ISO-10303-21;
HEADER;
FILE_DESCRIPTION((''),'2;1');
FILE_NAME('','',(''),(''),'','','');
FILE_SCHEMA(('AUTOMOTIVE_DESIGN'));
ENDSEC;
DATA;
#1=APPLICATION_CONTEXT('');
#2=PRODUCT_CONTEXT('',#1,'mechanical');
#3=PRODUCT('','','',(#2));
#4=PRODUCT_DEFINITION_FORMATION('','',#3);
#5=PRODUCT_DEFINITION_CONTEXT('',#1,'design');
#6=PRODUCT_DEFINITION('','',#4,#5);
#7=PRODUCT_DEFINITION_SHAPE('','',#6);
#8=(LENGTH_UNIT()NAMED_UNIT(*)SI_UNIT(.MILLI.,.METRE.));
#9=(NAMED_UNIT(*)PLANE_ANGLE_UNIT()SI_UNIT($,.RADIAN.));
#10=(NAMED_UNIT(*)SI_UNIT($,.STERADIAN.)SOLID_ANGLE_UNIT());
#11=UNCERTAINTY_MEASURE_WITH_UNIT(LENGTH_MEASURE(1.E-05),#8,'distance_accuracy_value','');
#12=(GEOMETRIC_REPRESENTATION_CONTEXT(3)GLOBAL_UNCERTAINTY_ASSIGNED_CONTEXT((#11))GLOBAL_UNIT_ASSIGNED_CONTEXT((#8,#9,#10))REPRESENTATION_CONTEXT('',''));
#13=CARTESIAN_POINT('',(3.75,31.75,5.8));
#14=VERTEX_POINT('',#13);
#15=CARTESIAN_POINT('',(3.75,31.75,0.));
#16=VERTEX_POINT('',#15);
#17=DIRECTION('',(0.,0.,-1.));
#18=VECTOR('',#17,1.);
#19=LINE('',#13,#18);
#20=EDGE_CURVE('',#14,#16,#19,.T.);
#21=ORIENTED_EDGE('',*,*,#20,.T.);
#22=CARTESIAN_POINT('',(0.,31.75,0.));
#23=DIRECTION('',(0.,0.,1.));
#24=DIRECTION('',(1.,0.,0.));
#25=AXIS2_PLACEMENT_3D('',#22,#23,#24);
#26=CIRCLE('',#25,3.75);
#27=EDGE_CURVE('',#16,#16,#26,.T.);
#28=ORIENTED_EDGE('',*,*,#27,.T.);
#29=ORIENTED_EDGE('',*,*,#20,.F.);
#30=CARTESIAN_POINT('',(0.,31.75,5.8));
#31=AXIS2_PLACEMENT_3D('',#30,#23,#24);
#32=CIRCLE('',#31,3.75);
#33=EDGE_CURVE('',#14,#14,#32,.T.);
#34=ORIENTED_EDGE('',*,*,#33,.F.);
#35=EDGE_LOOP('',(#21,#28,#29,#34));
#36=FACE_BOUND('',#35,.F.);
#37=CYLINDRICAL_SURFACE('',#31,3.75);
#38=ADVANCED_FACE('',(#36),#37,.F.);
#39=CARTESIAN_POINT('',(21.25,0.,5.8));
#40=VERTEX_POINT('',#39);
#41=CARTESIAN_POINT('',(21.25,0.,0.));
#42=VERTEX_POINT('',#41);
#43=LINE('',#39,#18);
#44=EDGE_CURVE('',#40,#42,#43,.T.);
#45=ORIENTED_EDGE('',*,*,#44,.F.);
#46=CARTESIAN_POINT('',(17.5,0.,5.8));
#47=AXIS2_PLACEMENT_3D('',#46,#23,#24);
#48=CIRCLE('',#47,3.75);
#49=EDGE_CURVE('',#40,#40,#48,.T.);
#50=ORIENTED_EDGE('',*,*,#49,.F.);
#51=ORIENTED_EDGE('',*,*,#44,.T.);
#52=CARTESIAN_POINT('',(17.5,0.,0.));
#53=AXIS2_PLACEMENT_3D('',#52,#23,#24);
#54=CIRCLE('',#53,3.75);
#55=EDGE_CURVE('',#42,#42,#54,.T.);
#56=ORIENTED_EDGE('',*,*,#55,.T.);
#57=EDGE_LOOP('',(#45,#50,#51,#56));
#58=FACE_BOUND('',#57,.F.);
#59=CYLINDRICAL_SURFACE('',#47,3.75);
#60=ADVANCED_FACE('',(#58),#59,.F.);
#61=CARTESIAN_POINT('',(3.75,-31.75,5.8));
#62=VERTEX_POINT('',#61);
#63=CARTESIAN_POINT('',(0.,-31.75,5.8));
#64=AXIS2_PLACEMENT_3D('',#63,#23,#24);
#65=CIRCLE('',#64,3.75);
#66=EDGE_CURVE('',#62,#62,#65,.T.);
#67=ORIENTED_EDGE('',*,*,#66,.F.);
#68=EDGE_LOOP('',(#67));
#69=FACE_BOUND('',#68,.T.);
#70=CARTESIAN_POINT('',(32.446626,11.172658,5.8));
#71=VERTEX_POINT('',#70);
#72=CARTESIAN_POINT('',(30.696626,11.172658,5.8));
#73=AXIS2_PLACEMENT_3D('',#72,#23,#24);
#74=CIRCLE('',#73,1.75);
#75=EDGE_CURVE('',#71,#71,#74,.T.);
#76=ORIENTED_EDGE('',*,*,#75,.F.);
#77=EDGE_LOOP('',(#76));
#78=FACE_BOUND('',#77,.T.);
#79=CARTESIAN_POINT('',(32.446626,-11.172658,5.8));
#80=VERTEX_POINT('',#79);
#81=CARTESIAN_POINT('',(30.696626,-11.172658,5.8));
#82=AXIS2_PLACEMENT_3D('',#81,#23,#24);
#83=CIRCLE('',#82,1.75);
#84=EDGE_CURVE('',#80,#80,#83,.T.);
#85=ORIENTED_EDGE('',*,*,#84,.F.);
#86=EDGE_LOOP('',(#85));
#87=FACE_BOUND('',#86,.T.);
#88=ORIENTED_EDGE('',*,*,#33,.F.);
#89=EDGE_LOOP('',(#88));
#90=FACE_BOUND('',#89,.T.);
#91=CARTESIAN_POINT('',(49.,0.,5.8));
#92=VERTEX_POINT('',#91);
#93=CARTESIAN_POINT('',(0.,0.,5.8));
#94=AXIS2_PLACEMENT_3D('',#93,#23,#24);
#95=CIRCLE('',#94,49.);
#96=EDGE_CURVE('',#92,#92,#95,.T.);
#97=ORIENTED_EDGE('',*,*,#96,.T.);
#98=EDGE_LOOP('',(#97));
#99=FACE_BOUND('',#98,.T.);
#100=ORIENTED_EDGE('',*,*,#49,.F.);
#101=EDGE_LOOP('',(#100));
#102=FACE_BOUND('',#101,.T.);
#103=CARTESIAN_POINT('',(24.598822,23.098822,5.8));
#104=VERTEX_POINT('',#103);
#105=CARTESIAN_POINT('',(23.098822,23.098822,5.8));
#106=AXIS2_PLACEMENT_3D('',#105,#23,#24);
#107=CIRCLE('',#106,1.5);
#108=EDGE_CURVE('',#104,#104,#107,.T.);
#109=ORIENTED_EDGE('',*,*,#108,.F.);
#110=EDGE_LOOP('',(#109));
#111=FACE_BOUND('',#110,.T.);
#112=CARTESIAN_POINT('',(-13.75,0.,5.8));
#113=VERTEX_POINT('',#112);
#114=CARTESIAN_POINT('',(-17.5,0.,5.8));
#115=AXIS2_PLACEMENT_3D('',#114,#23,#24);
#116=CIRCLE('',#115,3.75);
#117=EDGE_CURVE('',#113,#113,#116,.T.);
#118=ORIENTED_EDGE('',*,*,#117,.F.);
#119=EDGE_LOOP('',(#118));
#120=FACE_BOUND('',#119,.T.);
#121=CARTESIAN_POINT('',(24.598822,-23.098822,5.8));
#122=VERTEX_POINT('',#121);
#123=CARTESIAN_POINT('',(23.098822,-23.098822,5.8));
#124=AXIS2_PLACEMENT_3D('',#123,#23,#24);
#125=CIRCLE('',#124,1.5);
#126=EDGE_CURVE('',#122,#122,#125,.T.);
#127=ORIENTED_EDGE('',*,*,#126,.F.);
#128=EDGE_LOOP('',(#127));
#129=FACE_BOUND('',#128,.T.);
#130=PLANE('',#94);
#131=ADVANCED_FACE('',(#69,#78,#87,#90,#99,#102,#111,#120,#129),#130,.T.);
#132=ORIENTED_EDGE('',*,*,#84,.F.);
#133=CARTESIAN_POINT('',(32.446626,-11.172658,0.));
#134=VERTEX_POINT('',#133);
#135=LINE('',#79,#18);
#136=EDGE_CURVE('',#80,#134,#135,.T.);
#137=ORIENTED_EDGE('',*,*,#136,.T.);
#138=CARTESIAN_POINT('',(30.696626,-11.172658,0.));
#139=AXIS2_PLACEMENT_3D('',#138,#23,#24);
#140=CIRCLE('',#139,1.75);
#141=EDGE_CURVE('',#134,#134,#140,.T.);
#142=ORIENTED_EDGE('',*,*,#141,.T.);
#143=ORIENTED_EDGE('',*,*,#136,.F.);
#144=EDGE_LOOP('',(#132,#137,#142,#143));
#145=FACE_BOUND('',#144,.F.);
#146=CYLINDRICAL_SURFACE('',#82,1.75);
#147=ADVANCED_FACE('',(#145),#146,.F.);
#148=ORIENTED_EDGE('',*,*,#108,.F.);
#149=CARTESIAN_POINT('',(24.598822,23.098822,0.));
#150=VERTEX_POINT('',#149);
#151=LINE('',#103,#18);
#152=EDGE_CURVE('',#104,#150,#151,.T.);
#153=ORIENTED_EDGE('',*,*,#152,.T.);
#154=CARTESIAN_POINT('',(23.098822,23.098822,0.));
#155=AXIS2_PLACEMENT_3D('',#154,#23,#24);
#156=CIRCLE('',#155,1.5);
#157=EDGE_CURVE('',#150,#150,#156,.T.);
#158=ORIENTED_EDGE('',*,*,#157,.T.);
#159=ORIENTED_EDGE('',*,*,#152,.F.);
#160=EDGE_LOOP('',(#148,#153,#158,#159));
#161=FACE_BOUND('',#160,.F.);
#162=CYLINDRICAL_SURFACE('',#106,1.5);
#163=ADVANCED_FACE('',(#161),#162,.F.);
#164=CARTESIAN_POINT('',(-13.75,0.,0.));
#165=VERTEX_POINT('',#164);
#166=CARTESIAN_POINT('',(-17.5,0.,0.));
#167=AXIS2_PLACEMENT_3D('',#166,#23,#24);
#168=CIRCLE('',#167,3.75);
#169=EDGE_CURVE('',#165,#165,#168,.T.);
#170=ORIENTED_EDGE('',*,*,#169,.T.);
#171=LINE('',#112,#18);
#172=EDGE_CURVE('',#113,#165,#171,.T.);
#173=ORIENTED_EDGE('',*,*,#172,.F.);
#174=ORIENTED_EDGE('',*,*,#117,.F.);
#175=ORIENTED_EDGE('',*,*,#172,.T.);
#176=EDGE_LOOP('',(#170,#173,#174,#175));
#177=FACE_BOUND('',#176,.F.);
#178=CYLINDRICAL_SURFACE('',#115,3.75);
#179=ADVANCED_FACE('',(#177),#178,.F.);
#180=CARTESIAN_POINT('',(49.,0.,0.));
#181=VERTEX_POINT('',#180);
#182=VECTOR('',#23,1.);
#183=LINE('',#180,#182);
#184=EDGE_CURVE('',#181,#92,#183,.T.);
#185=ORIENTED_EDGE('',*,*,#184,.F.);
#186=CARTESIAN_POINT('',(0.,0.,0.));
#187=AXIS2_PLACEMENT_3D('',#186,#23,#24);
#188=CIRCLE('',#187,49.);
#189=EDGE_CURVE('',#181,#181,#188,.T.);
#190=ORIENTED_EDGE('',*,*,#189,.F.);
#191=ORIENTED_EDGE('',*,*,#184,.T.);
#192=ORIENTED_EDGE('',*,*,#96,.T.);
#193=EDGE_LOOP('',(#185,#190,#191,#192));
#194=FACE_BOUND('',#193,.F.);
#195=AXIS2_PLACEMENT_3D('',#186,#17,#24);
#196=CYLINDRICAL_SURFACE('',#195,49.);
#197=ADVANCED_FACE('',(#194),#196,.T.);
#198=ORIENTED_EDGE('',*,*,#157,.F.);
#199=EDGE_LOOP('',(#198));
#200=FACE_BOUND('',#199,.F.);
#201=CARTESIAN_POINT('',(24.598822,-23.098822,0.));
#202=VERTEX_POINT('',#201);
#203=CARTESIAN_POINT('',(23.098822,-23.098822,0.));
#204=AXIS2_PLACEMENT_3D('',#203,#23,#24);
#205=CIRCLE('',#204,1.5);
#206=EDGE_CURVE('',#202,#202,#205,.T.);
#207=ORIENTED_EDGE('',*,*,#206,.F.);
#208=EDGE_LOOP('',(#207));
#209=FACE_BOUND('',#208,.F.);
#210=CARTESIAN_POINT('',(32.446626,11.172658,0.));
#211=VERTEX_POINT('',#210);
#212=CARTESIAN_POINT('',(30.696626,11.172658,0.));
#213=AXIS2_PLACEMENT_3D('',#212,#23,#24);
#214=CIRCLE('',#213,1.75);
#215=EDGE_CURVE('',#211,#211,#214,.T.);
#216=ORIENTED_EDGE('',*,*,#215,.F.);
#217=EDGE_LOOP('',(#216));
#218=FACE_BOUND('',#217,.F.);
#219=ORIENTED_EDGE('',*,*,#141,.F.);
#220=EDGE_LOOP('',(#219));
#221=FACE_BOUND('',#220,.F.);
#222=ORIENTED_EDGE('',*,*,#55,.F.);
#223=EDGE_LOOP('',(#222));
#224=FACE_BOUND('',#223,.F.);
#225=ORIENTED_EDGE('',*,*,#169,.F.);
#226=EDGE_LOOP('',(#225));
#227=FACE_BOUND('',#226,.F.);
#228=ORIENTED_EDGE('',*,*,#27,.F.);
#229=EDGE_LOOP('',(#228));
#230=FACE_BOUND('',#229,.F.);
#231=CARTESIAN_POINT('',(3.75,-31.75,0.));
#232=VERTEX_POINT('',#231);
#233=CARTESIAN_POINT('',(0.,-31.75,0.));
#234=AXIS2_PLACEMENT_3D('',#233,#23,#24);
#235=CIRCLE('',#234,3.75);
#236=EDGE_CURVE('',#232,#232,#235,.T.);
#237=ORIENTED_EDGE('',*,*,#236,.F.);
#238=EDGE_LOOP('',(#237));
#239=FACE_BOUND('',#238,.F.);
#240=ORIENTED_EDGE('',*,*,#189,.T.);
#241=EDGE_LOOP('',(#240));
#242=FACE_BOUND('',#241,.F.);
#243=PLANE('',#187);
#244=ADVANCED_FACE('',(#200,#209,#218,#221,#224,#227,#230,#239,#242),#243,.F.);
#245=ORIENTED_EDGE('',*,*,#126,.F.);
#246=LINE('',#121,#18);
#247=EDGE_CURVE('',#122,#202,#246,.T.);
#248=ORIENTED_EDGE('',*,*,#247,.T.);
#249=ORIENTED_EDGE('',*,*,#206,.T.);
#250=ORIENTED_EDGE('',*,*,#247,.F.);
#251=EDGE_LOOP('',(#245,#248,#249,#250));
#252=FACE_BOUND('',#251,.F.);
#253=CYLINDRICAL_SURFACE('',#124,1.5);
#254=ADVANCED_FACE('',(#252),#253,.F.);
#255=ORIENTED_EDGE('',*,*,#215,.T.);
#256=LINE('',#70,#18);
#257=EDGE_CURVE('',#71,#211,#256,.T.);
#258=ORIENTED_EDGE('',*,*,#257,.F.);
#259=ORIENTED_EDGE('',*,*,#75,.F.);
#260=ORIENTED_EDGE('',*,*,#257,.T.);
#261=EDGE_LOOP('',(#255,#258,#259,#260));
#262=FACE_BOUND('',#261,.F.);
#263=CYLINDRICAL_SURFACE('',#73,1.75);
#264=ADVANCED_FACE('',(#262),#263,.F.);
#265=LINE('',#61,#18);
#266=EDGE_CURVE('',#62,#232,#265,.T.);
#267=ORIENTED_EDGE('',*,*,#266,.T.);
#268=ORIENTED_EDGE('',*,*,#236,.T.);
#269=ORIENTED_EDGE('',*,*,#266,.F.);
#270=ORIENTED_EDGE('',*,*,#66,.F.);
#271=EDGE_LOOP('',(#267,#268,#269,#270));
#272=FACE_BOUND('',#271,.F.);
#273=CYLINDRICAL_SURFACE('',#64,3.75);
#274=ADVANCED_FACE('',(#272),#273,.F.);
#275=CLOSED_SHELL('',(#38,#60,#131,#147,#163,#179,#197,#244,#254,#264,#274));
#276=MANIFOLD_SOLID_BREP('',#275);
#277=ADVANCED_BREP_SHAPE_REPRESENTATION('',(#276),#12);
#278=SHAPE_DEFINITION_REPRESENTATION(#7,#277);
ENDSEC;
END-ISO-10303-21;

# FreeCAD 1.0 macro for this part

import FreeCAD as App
import Part
import Sketcher

V = App.Vector
Q = App.Units.Quantity

doc = App.newDocument("Part")
body = doc.addObject("PartDesign::Body", "Body")

sketch1 = doc.addObject("Sketcher::SketchObject", "Sketch")
body.addObject(sketch1)
sketch1.AttachmentSupport = (doc.XY_Plane, [""])
sketch1.MapMode = "FlatFace"
sketch1.addGeometry(Part.Circle(V(0, 0, 0), V(0, 0, 1), 49), False)
sketch1.addConstraint([
    Sketcher.Constraint("Coincident", 0, 3, -1, 1),
    Sketcher.Constraint("Diameter", 0, Q("98 mm")),
])
pad1 = doc.addObject("PartDesign::Pad", "Pad")
body.addObject(pad1)
pad1.Profile = sketch1
pad1.Length = 5.8

sketch2 = doc.addObject("Sketcher::SketchObject", "Sketch001")
body.addObject(sketch2)
sketch2.AttachmentSupport = (doc.XY_Plane, [""])
sketch2.MapMode = "FlatFace"
sketch2.AttachmentOffset = App.Placement(V(0, 0, 5.8), App.Rotation())
sketch2.addGeometry([
    Part.Circle(V(0, 31.75, 0), V(0, 0, 1), 3.75),
    Part.Circle(V(0, -31.75, 0), V(0, 0, 1), 3.75),
    Part.Circle(V(-17.5, 0, 0), V(0, 0, 1), 3.75),
    Part.Circle(V(17.5, 0, 0), V(0, 0, 1), 3.75),
    Part.Circle(V(23.098822, 23.098822, 0), V(0, 0, 1), 1.5),
    Part.Circle(V(23.098822, -23.098822, 0), V(0, 0, 1), 1.5),
    Part.Circle(V(30.696626, 11.172658, 0), V(0, 0, 1), 1.75),
    Part.Circle(V(30.696626, -11.172658, 0), V(0, 0, 1), 1.75),
], False)
sketch2.addConstraint([
    Sketcher.Constraint("Equal", 0, 1),
    Sketcher.Constraint("Equal", 1, 2),
    Sketcher.Constraint("Equal", 2, 3),
    Sketcher.Constraint("Equal", 4, 5),
    Sketcher.Constraint("Equal", 6, 7),
    Sketcher.Constraint("Symmetric", 0, 3, 1, 3, -1, 1),
    Sketcher.Constraint("Symmetric", 2, 3, 3, 3, -1, 1),
    Sketcher.Constraint("Symmetric", 4, 3, 5, 3, -1),
    Sketcher.Constraint("Symmetric", 6, 3, 7, 3, -1),
    Sketcher.Constraint("PointOnObject", 0, 3, -2),
    Sketcher.Constraint("PointOnObject", 2, 3, -1),
    Sketcher.Constraint("Diameter", 4, Q("3 mm")),
    Sketcher.Constraint("Diameter", 0, Q("7.5 mm")),
    Sketcher.Constraint("Diameter", 6, Q("3.5 mm")),
    Sketcher.Constraint("DistanceX", 2, 3, 3, 3, Q("35 mm")),
    Sketcher.Constraint("DistanceY", 1, 3, 0, 3, Q("63.5 mm")),
    Sketcher.Constraint("DistanceX", -1, 1, 4, 3, Q("23.098822 mm")),
    Sketcher.Constraint("DistanceY", -1, 1, 4, 3, Q("23.098822 mm")),
    Sketcher.Constraint("DistanceY", 5, 3, 6, 3, Q("34.27148 mm")),
    Sketcher.Constraint("DistanceX", -1, 1, 6, 3, Q("30.696626 mm")),
])
pocket1 = doc.addObject("PartDesign::Pocket", "Pocket")
body.addObject(pocket1)
pocket1.Profile = sketch2
pocket1.Type = "ThroughAll"

doc.recompute()
